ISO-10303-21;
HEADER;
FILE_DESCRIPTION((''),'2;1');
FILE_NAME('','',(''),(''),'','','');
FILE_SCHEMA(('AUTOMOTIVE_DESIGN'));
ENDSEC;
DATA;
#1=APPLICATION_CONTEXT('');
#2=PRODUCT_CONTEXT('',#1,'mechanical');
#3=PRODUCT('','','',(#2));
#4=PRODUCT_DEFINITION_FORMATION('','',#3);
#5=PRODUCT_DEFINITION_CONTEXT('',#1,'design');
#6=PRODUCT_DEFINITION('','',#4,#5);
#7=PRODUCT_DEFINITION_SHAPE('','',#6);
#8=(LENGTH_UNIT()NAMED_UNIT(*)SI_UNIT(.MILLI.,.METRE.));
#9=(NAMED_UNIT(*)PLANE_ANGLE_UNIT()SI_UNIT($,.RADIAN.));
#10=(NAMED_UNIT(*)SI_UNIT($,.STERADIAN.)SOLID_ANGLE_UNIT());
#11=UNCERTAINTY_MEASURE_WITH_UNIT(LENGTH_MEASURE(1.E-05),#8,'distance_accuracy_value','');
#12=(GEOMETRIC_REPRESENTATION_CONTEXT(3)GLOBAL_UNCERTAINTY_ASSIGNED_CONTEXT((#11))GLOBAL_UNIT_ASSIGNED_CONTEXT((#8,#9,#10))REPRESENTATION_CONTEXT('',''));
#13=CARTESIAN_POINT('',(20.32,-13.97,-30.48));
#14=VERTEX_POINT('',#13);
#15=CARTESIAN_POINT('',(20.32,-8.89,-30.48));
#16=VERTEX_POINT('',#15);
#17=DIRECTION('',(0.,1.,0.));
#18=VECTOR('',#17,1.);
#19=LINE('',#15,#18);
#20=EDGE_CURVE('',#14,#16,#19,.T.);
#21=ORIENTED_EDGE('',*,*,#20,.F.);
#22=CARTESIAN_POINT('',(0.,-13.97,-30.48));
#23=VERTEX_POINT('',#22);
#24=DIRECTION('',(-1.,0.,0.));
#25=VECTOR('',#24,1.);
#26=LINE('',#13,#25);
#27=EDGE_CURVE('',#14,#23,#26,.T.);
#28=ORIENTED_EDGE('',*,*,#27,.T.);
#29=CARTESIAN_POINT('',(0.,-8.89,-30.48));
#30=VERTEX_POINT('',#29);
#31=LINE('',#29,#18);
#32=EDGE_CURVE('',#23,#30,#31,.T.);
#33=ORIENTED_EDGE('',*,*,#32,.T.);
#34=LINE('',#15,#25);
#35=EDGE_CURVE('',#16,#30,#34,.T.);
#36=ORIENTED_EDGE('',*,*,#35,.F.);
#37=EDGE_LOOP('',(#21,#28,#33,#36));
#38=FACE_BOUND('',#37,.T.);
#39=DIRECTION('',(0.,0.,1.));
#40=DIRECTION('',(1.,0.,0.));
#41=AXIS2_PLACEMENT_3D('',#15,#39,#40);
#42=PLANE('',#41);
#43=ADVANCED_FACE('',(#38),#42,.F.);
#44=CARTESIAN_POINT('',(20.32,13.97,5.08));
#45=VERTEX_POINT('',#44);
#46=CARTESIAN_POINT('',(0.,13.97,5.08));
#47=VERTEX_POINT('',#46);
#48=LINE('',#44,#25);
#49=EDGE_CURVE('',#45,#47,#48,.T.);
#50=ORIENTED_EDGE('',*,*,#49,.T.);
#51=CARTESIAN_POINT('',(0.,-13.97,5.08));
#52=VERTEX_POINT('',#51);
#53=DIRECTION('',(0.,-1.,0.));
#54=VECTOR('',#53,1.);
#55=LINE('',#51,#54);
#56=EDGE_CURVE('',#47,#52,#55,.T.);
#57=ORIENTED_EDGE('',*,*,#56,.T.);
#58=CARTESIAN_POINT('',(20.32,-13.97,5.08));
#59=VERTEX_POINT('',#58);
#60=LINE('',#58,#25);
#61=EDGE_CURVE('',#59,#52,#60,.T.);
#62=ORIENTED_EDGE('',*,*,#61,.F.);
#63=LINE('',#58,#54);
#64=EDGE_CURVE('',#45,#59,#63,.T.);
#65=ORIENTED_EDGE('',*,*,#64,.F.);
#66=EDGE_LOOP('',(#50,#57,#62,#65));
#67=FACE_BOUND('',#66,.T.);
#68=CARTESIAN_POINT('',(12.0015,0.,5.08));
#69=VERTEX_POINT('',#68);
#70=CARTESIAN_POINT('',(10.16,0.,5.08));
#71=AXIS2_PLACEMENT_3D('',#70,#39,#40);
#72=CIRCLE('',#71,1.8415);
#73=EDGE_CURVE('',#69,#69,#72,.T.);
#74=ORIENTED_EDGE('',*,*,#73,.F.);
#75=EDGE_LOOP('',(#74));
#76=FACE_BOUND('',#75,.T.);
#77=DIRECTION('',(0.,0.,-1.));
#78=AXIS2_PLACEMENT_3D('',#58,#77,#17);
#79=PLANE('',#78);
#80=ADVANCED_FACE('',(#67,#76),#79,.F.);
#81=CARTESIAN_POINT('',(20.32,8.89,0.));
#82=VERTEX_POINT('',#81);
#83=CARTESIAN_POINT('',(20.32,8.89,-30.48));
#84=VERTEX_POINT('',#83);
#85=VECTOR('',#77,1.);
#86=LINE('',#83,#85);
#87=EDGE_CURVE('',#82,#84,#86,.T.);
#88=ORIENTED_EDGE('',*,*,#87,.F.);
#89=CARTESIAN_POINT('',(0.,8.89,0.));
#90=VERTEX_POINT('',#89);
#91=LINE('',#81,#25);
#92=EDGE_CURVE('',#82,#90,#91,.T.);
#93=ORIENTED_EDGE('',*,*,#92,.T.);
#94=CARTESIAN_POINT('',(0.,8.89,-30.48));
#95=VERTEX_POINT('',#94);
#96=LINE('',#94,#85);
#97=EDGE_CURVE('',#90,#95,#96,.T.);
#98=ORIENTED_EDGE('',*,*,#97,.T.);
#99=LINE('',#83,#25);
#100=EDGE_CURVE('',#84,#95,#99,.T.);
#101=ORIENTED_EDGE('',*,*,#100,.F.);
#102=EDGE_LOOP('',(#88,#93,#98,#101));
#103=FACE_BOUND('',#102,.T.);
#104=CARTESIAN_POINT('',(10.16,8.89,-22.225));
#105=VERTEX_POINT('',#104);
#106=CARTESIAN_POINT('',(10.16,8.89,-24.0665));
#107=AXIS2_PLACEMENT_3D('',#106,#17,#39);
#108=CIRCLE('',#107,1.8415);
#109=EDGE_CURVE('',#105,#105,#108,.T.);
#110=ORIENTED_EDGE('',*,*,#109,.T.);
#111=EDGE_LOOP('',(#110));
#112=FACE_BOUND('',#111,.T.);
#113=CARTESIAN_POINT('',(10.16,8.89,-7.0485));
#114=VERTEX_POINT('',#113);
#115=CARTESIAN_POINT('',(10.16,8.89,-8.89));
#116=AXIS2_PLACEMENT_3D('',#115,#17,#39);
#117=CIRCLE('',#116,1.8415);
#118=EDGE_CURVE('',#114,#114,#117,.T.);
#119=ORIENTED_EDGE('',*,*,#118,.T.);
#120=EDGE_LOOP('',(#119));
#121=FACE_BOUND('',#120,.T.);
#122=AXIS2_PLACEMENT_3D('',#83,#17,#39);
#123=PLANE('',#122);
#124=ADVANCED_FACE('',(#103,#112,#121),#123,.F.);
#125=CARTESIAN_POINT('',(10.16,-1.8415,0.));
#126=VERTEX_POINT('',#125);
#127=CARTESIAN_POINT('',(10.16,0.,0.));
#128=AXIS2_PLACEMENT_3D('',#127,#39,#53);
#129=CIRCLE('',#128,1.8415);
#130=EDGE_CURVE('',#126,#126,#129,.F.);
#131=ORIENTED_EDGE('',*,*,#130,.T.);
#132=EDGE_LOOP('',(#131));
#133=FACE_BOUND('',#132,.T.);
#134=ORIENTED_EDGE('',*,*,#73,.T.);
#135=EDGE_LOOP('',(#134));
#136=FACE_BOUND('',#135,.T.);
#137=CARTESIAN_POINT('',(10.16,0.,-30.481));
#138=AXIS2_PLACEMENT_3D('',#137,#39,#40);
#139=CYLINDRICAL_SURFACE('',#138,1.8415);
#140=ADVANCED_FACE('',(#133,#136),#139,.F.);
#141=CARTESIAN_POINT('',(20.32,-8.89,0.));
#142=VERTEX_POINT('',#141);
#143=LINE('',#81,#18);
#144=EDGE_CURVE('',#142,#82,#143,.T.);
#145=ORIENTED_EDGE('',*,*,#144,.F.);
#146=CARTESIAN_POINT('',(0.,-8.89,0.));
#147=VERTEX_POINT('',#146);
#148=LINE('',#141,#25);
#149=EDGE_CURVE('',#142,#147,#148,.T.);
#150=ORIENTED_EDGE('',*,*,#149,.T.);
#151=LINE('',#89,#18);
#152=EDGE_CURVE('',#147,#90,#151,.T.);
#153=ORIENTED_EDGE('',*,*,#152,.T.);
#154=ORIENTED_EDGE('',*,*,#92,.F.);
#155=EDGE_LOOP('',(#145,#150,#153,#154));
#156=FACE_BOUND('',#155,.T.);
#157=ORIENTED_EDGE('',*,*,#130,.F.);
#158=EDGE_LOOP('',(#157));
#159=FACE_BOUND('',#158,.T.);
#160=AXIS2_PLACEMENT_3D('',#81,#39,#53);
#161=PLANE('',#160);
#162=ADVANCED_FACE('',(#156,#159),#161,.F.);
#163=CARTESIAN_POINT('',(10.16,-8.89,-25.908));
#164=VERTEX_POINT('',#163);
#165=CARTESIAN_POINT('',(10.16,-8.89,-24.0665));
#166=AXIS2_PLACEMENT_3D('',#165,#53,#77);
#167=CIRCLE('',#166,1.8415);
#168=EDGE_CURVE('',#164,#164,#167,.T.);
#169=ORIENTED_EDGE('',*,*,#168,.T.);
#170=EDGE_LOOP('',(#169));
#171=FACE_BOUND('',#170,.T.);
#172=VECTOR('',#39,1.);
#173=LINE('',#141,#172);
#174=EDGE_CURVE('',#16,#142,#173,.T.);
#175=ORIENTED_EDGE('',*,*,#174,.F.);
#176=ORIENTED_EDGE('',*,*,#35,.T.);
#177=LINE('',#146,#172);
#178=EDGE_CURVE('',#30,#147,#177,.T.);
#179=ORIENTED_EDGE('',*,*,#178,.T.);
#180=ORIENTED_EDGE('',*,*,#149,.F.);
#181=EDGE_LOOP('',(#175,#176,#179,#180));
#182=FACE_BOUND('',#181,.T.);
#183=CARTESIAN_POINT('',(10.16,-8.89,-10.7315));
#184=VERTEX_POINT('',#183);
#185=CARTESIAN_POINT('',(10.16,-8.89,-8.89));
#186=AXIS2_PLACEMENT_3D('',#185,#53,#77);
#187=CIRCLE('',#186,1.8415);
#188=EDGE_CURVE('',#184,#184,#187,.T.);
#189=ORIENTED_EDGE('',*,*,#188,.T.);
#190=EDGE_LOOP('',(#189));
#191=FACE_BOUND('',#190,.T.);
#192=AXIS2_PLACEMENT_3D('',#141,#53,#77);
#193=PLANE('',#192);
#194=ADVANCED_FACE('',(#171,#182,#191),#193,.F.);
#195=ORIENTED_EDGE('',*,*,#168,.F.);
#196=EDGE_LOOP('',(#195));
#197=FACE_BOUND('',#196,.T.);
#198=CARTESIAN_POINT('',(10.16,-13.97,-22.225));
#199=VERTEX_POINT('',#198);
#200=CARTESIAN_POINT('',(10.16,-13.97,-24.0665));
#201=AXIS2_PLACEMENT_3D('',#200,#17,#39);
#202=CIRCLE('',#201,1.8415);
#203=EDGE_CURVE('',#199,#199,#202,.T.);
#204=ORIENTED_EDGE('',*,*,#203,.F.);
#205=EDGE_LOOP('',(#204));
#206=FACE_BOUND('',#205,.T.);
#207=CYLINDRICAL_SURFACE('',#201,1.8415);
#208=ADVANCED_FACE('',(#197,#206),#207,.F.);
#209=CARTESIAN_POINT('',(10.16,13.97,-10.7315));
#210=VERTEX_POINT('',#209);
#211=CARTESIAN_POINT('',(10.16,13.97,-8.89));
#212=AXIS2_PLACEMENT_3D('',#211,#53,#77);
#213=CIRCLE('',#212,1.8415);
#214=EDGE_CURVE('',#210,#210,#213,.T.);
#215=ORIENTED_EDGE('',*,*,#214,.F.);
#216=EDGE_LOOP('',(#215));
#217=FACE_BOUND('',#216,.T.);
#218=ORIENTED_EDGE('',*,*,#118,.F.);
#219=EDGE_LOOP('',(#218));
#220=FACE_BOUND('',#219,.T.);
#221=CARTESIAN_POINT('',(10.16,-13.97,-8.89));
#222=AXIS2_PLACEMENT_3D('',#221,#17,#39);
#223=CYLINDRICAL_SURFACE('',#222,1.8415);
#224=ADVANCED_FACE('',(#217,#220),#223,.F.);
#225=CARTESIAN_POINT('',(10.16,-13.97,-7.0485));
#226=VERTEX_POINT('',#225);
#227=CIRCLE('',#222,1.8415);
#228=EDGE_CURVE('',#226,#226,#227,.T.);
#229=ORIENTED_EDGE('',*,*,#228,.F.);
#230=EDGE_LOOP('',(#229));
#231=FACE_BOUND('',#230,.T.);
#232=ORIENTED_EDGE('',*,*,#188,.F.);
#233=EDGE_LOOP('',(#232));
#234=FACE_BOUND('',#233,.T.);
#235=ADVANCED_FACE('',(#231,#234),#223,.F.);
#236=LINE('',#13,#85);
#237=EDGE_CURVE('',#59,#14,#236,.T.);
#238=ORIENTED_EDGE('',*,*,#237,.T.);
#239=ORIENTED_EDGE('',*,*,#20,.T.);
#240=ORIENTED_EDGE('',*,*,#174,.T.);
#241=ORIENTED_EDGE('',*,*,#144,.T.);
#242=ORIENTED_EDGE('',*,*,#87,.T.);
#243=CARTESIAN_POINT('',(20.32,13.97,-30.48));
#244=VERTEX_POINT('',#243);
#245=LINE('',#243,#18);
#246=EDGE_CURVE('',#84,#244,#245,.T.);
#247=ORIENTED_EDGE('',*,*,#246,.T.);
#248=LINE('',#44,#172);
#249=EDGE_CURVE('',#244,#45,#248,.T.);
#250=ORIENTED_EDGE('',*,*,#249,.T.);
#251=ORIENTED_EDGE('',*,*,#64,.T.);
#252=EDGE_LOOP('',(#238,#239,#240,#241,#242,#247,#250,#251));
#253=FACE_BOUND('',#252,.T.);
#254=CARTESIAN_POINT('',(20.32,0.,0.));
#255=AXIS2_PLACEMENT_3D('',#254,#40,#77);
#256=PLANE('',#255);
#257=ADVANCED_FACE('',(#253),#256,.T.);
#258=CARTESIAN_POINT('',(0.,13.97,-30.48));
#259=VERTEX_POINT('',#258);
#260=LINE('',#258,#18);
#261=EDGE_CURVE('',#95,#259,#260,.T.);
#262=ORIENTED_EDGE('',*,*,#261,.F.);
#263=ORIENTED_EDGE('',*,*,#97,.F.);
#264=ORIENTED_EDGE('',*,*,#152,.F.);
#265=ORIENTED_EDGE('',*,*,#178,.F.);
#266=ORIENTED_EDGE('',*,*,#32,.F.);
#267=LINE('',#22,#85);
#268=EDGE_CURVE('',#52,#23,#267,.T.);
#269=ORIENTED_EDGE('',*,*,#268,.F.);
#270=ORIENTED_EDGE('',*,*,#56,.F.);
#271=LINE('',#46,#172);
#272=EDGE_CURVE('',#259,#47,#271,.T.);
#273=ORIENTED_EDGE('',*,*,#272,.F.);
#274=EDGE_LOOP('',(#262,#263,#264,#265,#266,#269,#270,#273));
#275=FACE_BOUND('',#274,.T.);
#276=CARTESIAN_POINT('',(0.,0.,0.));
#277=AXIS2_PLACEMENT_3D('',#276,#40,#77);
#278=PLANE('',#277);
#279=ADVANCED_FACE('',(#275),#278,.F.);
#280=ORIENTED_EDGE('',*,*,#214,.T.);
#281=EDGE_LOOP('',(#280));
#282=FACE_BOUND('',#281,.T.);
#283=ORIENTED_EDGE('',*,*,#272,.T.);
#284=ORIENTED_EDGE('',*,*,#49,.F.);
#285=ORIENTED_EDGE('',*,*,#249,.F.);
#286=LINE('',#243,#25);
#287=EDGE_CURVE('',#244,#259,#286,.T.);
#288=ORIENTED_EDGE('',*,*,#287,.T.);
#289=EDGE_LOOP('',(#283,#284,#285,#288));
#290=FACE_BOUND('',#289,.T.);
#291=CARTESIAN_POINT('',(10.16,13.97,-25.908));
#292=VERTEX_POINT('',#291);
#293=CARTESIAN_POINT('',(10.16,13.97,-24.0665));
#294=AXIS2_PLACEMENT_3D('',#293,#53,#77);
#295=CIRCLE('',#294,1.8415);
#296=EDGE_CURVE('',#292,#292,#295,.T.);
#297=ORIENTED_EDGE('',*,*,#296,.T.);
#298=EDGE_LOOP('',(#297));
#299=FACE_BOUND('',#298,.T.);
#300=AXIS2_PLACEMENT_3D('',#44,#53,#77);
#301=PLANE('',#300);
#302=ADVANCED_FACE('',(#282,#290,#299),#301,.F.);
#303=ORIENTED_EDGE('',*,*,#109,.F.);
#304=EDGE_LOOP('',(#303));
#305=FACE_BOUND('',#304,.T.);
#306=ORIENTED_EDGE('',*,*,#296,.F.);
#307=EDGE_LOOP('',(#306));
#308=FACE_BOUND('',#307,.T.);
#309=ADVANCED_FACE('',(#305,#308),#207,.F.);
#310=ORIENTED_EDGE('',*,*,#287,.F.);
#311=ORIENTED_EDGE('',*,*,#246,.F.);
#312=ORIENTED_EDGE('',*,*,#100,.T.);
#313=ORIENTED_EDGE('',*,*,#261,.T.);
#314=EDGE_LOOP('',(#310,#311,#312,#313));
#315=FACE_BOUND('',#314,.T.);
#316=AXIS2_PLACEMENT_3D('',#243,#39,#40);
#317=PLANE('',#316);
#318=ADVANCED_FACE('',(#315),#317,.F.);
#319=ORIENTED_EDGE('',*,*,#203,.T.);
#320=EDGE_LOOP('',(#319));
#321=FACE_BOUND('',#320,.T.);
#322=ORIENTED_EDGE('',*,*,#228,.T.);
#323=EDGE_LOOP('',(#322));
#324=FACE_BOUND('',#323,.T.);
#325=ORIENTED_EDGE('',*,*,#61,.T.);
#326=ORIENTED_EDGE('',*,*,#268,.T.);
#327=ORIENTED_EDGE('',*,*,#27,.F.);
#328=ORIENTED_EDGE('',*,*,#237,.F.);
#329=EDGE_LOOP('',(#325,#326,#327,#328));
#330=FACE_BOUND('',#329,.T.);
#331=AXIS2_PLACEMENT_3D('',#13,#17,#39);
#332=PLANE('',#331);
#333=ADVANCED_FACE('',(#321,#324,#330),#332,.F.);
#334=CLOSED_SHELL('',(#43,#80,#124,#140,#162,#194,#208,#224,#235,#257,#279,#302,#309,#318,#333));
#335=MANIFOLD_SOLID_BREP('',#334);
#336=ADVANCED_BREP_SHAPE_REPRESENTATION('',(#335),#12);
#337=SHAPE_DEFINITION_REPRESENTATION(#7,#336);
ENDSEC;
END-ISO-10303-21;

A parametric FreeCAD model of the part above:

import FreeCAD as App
import Part
import Sketcher

V = App.Vector
Q = App.Units.Quantity

doc = App.newDocument("Part")
body = doc.addObject("PartDesign::Body", "Body")

sketch1 = body.newObject("Sketcher::SketchObject", "Sketch")
sketch1.AttachmentSupport = (doc.getObject("YZ_Plane"), [""])
sketch1.MapMode = "FlatFace"
sketch1.addGeometry([
    Part.LineSegment(V(-9, 0, 0), V(9, 0, 0)),
    Part.LineSegment(V(9, 0, 0), V(9, -30, 0)),
    Part.LineSegment(V(9, -30, 0), V(14, -30, 0)),
    Part.LineSegment(V(14, -30, 0), V(14, 5, 0)),
    Part.LineSegment(V(14, 5, 0), V(-14, 5, 0)),
    Part.LineSegment(V(-14, 5, 0), V(-14, -30, 0)),
    Part.LineSegment(V(-14, -30, 0), V(-9, -30, 0)),
    Part.LineSegment(V(-9, -30, 0), V(-9, 0, 0)),
], False)
sketch1.addConstraint([
    Sketcher.Constraint("Coincident", 0, 2, 1, 1),
    Sketcher.Constraint("Coincident", 1, 2, 2, 1),
    Sketcher.Constraint("Coincident", 2, 2, 3, 1),
    Sketcher.Constraint("Coincident", 3, 2, 4, 1),
    Sketcher.Constraint("Coincident", 4, 2, 5, 1),
    Sketcher.Constraint("Coincident", 5, 2, 6, 1),
    Sketcher.Constraint("Coincident", 6, 2, 7, 1),
    Sketcher.Constraint("Coincident", 7, 2, 0, 1),
    Sketcher.Constraint("Horizontal", 0),
    Sketcher.Constraint("Vertical", 1),
    Sketcher.Constraint("Horizontal", 2),
    Sketcher.Constraint("Vertical", 3),
    Sketcher.Constraint("Horizontal", 4),
    Sketcher.Constraint("Vertical", 5),
    Sketcher.Constraint("Horizontal", 6),
    Sketcher.Constraint("Vertical", 7),
    Sketcher.Constraint("Symmetric", 0, 2, 7, 2, -1, 1),
    Sketcher.Constraint("Symmetric", 2, 2, 5, 2, -2),
    Sketcher.Constraint("DistanceX", 0, 1, 0, 2, Q("0.7 in")),
    Sketcher.Constraint("DistanceX", 2, 1, 2, 2, Q("0.2 in")),
    Sketcher.Constraint("DistanceY", 1, 2, 1, 1, Q("1.2 in")),
    Sketcher.Constraint("DistanceY", 3, 1, 3, 2, Q("1.4 in")),
])
pad1 = body.newObject("PartDesign::Pad", "Pad")
pad1.Profile = sketch1
pad1.Length = Q("0.8 in")

sketch2 = body.newObject("Sketcher::SketchObject", "Sketch001")
sketch2.AttachmentSupport = (doc.getObject("XY_Plane"), [""])
sketch2.MapMode = "FlatFace"
sketch2.AttachmentOffset = App.Placement(V(0, 0, 0.2 * 25.4), App.Rotation())
sketch2.addGeometry(Part.Circle(V(10.2, 0, 0), V(0, 0, 1), 1.8), False)
sketch2.addConstraint([
    Sketcher.Constraint("PointOnObject", 0, 3, -1),
    Sketcher.Constraint("Diameter", 0, Q("0.145 in")),
    Sketcher.Constraint("DistanceX", -1, 1, 0, 3, Q("0.4 in")),
])
pocket1 = body.newObject("PartDesign::Pocket", "Pocket")
pocket1.Profile = sketch2
pocket1.Type = "UpToFirst"

sketch3 = body.newObject("Sketcher::SketchObject", "Sketch002")
sketch3.AttachmentSupport = (doc.getObject("XZ_Plane"), [""])
sketch3.MapMode = "FlatFace"
sketch3.AttachmentOffset = App.Placement(V(0, 0, -0.55 * 25.4), App.Rotation())
sketch3.addGeometry([
    Part.Circle(V(10.2, -8.9, 0), V(0, 0, 1), 1.8),
    Part.Circle(V(10.2, -24.1, 0), V(0, 0, 1), 1.8),
], False)
sketch3.addConstraint([
    Sketcher.Constraint("Equal", 0, 1),
    Sketcher.Constraint("Vertical", 0, 3, 1, 3),
    Sketcher.Constraint("Diameter", 0, Q("0.145 in")),
    Sketcher.Constraint("DistanceX", -1, 1, 0, 3, Q("0.4 in")),
    Sketcher.Constraint("DistanceY", 0, 3, -1, 1, Q("0.35 in")),
    Sketcher.Constraint("DistanceY", 1, 3, -1, 1, Q("0.9475 in")),
])
pocket2 = body.newObject("PartDesign::Pocket", "Pocket001")
pocket2.Profile = sketch3
pocket2.Type = "ThroughAll"
pocket2.Midplane = True

doc.recompute()
